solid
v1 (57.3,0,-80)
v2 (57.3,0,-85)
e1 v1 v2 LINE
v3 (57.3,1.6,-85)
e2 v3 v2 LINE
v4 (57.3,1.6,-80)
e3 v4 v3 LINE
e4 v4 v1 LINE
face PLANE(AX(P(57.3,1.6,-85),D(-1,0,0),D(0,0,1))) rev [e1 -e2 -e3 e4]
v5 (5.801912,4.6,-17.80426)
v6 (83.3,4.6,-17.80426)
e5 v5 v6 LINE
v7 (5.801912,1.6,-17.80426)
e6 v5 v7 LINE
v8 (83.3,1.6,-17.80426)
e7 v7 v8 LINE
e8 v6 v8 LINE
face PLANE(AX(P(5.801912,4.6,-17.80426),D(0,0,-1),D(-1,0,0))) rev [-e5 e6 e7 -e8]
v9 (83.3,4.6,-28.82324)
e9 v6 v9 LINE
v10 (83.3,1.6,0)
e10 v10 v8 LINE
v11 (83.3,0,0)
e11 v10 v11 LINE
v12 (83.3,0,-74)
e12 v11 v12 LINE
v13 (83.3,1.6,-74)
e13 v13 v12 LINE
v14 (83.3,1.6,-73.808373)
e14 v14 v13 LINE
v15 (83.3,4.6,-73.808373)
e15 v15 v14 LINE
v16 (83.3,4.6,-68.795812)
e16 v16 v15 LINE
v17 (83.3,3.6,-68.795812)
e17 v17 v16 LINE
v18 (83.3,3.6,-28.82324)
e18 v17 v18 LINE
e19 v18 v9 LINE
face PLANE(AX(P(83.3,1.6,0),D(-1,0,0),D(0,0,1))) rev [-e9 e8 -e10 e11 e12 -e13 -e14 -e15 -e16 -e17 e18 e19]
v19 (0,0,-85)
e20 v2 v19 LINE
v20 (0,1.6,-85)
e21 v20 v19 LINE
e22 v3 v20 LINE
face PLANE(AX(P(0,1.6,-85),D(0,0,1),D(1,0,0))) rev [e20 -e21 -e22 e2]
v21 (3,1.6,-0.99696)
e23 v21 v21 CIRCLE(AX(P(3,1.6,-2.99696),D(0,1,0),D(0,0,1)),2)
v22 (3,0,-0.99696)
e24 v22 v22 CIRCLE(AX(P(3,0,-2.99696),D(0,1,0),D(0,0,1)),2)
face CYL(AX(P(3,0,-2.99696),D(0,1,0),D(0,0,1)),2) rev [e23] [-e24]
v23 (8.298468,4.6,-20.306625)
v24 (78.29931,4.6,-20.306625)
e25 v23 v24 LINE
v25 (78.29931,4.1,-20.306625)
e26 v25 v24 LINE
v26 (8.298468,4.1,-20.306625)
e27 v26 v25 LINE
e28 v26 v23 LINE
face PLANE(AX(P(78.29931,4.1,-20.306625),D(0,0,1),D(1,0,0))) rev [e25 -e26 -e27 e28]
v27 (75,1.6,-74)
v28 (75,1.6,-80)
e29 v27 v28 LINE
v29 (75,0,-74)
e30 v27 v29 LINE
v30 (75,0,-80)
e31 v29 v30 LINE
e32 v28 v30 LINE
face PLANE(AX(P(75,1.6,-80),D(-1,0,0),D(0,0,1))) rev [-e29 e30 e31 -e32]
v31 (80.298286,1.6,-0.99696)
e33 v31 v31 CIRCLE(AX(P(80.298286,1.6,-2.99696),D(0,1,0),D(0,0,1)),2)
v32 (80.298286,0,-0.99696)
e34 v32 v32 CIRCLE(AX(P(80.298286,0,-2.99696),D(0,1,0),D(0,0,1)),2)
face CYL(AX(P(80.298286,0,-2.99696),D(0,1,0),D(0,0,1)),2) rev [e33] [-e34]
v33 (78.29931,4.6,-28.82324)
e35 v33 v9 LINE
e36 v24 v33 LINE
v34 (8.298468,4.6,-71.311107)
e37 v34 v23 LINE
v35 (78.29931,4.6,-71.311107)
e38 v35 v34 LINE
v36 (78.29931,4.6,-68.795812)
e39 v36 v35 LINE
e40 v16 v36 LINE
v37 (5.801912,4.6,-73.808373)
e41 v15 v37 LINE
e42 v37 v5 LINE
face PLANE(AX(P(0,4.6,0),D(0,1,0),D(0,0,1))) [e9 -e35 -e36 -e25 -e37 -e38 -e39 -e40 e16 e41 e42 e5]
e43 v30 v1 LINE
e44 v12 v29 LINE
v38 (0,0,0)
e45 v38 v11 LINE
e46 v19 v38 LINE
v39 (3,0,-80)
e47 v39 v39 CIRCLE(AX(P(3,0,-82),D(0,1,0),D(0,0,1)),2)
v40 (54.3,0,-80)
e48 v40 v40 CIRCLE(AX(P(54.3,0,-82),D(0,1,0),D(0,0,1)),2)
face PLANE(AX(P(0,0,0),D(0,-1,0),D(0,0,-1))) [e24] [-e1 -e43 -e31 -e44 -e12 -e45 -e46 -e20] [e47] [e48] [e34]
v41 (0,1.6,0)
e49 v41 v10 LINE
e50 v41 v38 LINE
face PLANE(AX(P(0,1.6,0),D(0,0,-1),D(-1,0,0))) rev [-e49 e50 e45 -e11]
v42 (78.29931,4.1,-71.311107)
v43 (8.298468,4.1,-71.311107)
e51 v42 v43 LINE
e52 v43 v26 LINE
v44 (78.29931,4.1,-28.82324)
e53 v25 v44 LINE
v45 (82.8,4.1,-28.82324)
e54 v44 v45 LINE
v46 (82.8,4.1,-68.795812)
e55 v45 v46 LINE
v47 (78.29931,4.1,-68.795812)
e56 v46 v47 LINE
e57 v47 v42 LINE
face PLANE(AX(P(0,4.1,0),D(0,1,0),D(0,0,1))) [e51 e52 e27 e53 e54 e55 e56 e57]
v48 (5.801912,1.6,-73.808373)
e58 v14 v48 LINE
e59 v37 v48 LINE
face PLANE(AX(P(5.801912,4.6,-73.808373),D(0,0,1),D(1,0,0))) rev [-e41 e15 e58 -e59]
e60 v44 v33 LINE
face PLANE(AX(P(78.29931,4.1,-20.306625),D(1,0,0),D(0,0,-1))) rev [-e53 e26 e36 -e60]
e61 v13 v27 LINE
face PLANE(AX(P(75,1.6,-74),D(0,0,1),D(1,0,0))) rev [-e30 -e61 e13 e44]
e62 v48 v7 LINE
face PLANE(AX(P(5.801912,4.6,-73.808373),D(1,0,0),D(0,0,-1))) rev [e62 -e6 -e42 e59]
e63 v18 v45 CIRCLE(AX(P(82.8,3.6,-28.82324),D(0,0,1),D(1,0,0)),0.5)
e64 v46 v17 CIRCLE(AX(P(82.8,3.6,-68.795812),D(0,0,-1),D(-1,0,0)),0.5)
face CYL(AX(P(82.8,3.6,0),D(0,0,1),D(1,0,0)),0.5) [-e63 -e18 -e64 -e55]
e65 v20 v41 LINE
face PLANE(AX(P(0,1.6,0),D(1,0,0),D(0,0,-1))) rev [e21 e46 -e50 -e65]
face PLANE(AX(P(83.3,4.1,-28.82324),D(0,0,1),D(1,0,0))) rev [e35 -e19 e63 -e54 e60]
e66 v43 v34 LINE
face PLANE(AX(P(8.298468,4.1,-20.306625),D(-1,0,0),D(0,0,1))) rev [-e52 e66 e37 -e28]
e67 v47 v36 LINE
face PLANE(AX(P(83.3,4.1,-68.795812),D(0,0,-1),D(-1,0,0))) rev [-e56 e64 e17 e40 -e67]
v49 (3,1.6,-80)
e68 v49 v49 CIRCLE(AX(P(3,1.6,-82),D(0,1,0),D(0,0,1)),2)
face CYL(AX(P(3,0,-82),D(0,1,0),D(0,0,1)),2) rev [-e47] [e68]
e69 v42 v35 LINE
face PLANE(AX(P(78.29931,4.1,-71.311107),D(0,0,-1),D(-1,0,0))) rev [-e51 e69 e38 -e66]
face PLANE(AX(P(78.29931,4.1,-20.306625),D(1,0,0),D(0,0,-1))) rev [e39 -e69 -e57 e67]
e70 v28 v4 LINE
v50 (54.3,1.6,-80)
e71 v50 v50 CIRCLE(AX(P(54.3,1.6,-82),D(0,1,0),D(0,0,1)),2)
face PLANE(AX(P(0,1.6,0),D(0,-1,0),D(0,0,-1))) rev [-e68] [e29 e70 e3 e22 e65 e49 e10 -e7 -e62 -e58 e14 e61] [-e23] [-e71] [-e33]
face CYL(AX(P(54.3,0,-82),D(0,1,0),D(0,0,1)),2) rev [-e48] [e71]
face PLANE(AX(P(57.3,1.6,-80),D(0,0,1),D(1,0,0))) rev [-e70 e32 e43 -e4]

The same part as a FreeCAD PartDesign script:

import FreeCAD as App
import Part
import Sketcher

V = App.Vector
Q = App.Units.Quantity


def edges_at(feature, points):
    """Names of the edges that pass closest to the given points."""
    edges = feature.Shape.Edges
    near = lambda p: min(range(len(edges)), key=lambda i: edges[i].distToShape(Part.Vertex(*p))[0])
    return sorted({f"Edge{near(p) + 1}" for p in points})


def add_polygon(sketch, points):
    """Adds a closed chain of lines whose ends are joined by coincident constraints."""
    first, n = sketch.GeometryCount, len(points)
    for a, b in zip(points, points[1:] + points[:1]):
        sketch.addGeometry(Part.LineSegment(App.Vector(*a, 0), App.Vector(*b, 0)), False)
    for i in range(n):
        sketch.addConstraint(Sketcher.Constraint("Coincident", first + i, 2, first + (i + 1) % n, 1))

doc = App.newDocument("Part")
body = doc.addObject("PartDesign::Body", "Body")

sketch1 = body.newObject("Sketcher::SketchObject", "Sketch")
sketch1.AttachmentSupport = (doc.getObject("XZ_Plane"), [""])
sketch1.MapMode = "FlatFace"
add_polygon(sketch1, [(0, 0), (83, 0), (83, -74), (75, -74), (75, -80), (57, -80), (57, -85), (0, -85)])
sketch1.addConstraint([
    Sketcher.Constraint("Horizontal", 0),
    Sketcher.Constraint("Vertical", 1),
    Sketcher.Constraint("Horizontal", 2),
    Sketcher.Constraint("Vertical", 3),
    Sketcher.Constraint("Horizontal", 4),
    Sketcher.Constraint("Vertical", 5),
    Sketcher.Constraint("Horizontal", 6),
    Sketcher.Constraint("Vertical", 7),
    Sketcher.Constraint("Coincident", 7, 2, -1, 1),
    Sketcher.Constraint("DistanceY", 1, 2, 1, 1, Q("74 mm")),
    Sketcher.Constraint("DistanceY", 3, 2, 3, 1, Q("6 mm")),
    Sketcher.Constraint("DistanceY", 5, 2, 5, 1, Q("5 mm")),
    Sketcher.Constraint("DistanceX", 0, 1, 0, 2, Q("83.3 mm")),
    Sketcher.Constraint("DistanceX", 2, 2, 2, 1, Q("8.3 mm")),
    Sketcher.Constraint("DistanceX", 4, 2, 4, 1, Q("17.7 mm")),
])
pad1 = body.newObject("PartDesign::Pad", "Pad")
pad1.Profile = sketch1
pad1.Length = 1.6
pad1.Reversed = True

sketch2 = body.newObject("Sketcher::SketchObject", "Sketch001")
sketch2.AttachmentSupport = (doc.getObject("XZ_Plane"), [""])
sketch2.MapMode = "FlatFace"
sketch2.AttachmentOffset = App.Placement(V(0, 0, -1.6), App.Rotation())
sketch2.addGeometry([
    Part.Circle(V(54.3, -82, 0), V(0, 0, 1), 2),
    Part.Circle(V(3, -82, 0), V(0, 0, 1), 2),
    Part.Circle(V(3, -3, 0), V(0, 0, 1), 2),
    Part.Circle(V(80.3, -3, 0), V(0, 0, 1), 2),
], False)
sketch2.addConstraint([
    Sketcher.Constraint("Equal", 0, 1),
    Sketcher.Constraint("Equal", 1, 2),
    Sketcher.Constraint("Equal", 2, 3),
    Sketcher.Constraint("Horizontal", 0, 3, 1, 3),
    Sketcher.Constraint("Horizontal", 2, 3, 3, 3),
    Sketcher.Constraint("Vertical", 1, 3, 2, 3),
    Sketcher.Constraint("Diameter", 0, Q("4 mm")),
    Sketcher.Constraint("DistanceY", 0, 3, -1, 1, Q("82 mm")),
    Sketcher.Constraint("DistanceX", -1, 1, 1, 3, Q("3 mm")),
    Sketcher.Constraint("DistanceX", -1, 1, 0, 3, Q("54.3 mm")),
    Sketcher.Constraint("DistanceY", 2, 3, -1, 1, Q("2.99696 mm")),
    Sketcher.Constraint("DistanceX", -1, 1, 3, 3, Q("80.298286 mm")),
])
pocket1 = body.newObject("PartDesign::Pocket", "Pocket")
pocket1.Profile = sketch2
pocket1.Length = 1.6
pocket1.Reversed = True

sketch3 = body.newObject("Sketcher::SketchObject", "Sketch002")
sketch3.AttachmentSupport = (doc.getObject("XZ_Plane"), [""])
sketch3.MapMode = "FlatFace"
sketch3.AttachmentOffset = App.Placement(V(0, 0, -1.6), App.Rotation())
add_polygon(sketch3, [(6, -74), (6, -18), (83, -18), (83, -74)])
sketch3.addConstraint([
    Sketcher.Constraint("Vertical", 0),
    Sketcher.Constraint("Horizontal", 1),
    Sketcher.Constraint("Vertical", 2),
    Sketcher.Constraint("Horizontal", 3),
    Sketcher.Constraint("DistanceX", -1, 1, 1, 2, Q("83.3 mm")),
    Sketcher.Constraint("DistanceX", 1, 1, 1, 2, Q("77.498088 mm")),
    Sketcher.Constraint("DistanceY", 0, 1, 0, 2, Q("56.004114 mm")),
    Sketcher.Constraint("DistanceY", 0, 2, -1, 1, Q("17.80426 mm")),
])
pad2 = body.newObject("PartDesign::Pad", "Pad001")
pad2.Profile = sketch3
pad2.Length = 3
pad2.Reversed = True

sketch4 = body.newObject("Sketcher::SketchObject", "Sketch003")
sketch4.AttachmentSupport = (doc.getObject("XZ_Plane"), [""])
sketch4.MapMode = "FlatFace"
sketch4.AttachmentOffset = App.Placement(V(0, 0, -4.6), App.Rotation())
add_polygon(sketch4, [(8, -71), (8, -20), (78, -20), (78, -71)])
sketch4.addConstraint([
    Sketcher.Constraint("Vertical", 0),
    Sketcher.Constraint("Horizontal", 1),
    Sketcher.Constraint("Vertical", 2),
    Sketcher.Constraint("Horizontal", 3),
    Sketcher.Constraint("DistanceX", 1, 1, 1, 2, Q("70.000842 mm")),
    Sketcher.Constraint("DistanceY", 0, 1, 0, 2, Q("51.004482 mm")),
    Sketcher.Constraint("DistanceX", -1, 1, 0, 2, Q("8.298468 mm")),
    Sketcher.Constraint("DistanceY", 0, 2, -1, 1, Q("20.306625 mm")),
])
pocket2 = body.newObject("PartDesign::Pocket", "Pocket001")
pocket2.Profile = sketch4
pocket2.Length = 0.5
pocket2.Reversed = True

sketch5 = body.newObject("Sketcher::SketchObject", "Sketch004")
sketch5.AttachmentSupport = (doc.getObject("XZ_Plane"), [""])
sketch5.MapMode = "FlatFace"
sketch5.AttachmentOffset = App.Placement(V(0, 0, -4.6), App.Rotation())
add_polygon(sketch5, [(78, -69), (78, -29), (83, -29), (83, -69)])
sketch5.addConstraint([
    Sketcher.Constraint("Vertical", 0),
    Sketcher.Constraint("Horizontal", 1),
    Sketcher.Constraint("Vertical", 2),
    Sketcher.Constraint("Horizontal", 3),
    Sketcher.Constraint("DistanceX", -1, 1, 1, 2, Q("83.3 mm")),
    Sketcher.Constraint("DistanceX", 1, 1, 1, 2, Q("5.00069 mm")),
    Sketcher.Constraint("DistanceY", 0, 1, 0, 2, Q("39.972572 mm")),
    Sketcher.Constraint("DistanceY", 0, 2, -1, 1, Q("28.82324 mm")),
])
pocket3 = body.newObject("PartDesign::Pocket", "Pocket002")
pocket3.Profile = sketch5
pocket3.Length = 0.5
pocket3.Reversed = True
doc.recompute()

fillet = body.newObject("PartDesign::Fillet", "Fillet")
fillet.Base = (pocket3, edges_at(pocket3, [(83.3, 4.1, -48.81)]))
fillet.Radius = 0.5

doc.recompute()
